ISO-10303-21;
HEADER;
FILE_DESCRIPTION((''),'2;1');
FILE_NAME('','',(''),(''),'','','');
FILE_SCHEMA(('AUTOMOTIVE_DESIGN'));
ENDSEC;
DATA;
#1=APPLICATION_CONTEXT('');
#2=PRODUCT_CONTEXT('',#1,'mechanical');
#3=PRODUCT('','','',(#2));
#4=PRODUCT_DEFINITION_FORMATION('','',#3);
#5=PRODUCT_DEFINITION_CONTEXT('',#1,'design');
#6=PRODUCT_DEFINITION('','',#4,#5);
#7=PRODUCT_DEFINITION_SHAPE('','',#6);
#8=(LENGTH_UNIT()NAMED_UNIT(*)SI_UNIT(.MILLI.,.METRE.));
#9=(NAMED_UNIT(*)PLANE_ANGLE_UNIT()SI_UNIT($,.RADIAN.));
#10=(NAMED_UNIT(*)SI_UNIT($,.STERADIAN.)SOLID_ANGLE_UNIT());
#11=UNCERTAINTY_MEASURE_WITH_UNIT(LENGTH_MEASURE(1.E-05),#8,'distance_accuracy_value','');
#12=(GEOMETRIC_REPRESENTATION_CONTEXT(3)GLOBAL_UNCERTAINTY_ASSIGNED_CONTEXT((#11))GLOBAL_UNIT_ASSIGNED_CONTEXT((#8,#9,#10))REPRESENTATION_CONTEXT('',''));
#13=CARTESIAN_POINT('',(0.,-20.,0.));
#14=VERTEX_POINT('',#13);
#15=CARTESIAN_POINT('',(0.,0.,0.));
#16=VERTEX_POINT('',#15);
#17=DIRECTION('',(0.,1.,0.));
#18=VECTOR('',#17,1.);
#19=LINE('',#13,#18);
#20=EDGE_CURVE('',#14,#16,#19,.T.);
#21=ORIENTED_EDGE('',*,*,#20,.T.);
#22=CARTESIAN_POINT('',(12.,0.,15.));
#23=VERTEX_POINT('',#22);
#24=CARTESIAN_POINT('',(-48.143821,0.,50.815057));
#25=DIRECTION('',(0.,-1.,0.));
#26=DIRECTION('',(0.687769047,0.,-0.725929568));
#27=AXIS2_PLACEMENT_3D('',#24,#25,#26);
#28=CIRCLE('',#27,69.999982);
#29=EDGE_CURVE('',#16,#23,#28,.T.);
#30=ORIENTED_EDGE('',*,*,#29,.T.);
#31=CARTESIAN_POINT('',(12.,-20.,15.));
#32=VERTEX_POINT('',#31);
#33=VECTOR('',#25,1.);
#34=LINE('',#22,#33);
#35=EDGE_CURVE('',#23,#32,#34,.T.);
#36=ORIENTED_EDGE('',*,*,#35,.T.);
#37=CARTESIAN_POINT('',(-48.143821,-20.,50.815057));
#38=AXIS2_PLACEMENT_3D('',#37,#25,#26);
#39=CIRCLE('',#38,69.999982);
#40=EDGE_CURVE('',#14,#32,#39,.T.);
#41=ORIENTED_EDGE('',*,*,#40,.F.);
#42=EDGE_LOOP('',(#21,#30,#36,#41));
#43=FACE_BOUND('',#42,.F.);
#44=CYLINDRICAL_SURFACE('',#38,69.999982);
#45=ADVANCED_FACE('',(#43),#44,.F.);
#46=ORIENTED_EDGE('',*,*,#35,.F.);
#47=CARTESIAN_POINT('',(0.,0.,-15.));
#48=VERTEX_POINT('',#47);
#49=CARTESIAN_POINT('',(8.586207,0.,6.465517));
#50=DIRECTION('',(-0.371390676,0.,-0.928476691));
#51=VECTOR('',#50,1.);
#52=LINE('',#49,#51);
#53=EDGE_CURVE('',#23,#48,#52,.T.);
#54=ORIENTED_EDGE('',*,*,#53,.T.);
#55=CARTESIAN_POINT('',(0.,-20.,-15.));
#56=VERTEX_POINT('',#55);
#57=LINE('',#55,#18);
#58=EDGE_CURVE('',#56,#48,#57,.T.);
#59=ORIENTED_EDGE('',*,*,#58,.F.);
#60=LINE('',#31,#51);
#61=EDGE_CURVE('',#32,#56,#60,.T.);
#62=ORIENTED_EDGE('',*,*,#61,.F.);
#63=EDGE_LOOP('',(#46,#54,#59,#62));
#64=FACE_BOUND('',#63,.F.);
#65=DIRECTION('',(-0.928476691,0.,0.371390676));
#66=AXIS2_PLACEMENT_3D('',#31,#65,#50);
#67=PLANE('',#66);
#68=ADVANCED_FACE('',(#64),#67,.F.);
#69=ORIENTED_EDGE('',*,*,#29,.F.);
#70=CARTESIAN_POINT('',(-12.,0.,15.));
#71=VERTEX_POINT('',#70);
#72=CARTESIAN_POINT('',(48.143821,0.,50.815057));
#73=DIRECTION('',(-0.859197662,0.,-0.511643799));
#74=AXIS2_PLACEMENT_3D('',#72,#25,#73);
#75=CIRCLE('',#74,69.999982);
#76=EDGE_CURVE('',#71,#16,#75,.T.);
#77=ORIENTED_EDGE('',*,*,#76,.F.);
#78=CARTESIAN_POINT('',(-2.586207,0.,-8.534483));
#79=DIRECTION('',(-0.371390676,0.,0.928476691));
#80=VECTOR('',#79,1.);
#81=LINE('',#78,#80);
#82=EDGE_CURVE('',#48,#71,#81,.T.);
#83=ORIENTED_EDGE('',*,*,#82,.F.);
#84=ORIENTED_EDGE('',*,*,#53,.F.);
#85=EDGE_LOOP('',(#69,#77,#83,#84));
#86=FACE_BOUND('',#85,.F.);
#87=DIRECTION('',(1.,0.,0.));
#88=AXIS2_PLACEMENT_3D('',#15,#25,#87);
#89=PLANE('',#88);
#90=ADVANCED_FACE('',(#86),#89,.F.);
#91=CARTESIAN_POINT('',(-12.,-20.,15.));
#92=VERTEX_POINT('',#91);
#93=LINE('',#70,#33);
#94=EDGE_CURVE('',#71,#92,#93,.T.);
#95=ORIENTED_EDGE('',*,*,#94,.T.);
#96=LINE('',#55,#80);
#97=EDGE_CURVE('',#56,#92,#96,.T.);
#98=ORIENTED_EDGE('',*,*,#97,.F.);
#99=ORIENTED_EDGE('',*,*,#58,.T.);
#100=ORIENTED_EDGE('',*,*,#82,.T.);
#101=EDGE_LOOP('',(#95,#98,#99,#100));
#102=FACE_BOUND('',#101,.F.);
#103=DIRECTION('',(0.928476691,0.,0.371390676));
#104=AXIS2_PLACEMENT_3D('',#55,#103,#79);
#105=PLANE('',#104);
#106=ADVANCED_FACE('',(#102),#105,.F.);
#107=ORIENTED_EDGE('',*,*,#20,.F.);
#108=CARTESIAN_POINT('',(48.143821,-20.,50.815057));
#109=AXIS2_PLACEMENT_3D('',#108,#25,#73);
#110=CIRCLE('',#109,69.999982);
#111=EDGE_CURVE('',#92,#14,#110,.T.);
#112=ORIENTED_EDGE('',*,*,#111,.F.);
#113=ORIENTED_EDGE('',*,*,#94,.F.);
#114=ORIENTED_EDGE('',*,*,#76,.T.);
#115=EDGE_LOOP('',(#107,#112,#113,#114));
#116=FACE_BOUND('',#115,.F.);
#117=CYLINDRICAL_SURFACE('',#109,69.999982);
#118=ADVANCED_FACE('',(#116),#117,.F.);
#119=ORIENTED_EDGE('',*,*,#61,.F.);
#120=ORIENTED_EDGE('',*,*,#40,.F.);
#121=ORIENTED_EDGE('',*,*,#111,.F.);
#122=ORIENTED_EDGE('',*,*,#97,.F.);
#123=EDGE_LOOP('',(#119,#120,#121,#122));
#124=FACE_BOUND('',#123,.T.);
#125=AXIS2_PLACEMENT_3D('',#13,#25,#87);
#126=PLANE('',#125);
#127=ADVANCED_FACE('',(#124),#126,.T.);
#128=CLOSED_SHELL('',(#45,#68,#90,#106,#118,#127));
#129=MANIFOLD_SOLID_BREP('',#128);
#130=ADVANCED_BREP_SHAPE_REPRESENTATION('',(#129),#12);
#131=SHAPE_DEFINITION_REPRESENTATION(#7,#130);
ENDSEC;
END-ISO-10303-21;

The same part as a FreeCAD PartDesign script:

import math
import FreeCAD as App
import Part
import Sketcher
from FreeCAD import Vector


def add_polygon(sketch, points):
    """Adds a closed chain of lines whose ends are joined by coincident constraints."""
    first, n = sketch.GeometryCount, len(points)
    for a, b in zip(points, points[1:] + points[:1]):
        sketch.addGeometry(Part.LineSegment(App.Vector(*a, 0), App.Vector(*b, 0)), False)
    for i in range(n):
        sketch.addConstraint(Sketcher.Constraint("Coincident", first + i, 2, first + (i + 1) % n, 1))

doc = App.newDocument("Part")
body = doc.addObject("PartDesign::Body", "Body")

sketch1 = body.newObject("Sketcher::SketchObject", "Sketch")
sketch1.AttachmentSupport = (doc.getObject("XZ_Plane"), [""])
sketch1.MapMode = "FlatFace"
add_polygon(sketch1, [(-12, 15), (-12, -15), (12, -15), (12, 15)])
sketch1.addConstraint(Sketcher.Constraint("Vertical", 0))
sketch1.addConstraint(Sketcher.Constraint("Horizontal", 1))
sketch1.addConstraint(Sketcher.Constraint("Vertical", 2))
sketch1.addConstraint(Sketcher.Constraint("Horizontal", 3))
sketch1.addConstraint(Sketcher.Constraint("Symmetric", 0, 2, 2, 2, -1, 1))
sketch1.addConstraint(Sketcher.Constraint("DistanceX", 1, 1, 1, 2, 24.0))
sketch1.addConstraint(Sketcher.Constraint("DistanceY", 0, 2, 0, 1, 30.0))
pad1 = body.newObject("PartDesign::Pad", "Pad")
pad1.Profile = sketch1
pad1.Length = 20

sketch2 = body.newObject("Sketcher::SketchObject", "Sketch001")
sketch2.AttachmentSupport = (doc.getObject("XZ_Plane"), [""])
sketch2.MapMode = "FlatFace"
sketch2.AttachmentOffset = App.Placement(Vector(0, 0, 20), App.Rotation())
sketch2.addGeometry(Part.ArcOfCircle(Part.Circle(Vector(48, 51, 0), Vector(0, 0, 1), 70), math.radians(-149.23), math.radians(-133.45)), False)
sketch2.addGeometry(Part.ArcOfCircle(Part.Circle(Vector(-48, 51, 0), Vector(0, 0, 1), 70), math.radians(-46.55), math.radians(-30.77)), False)
sketch2.addGeometry(Part.LineSegment(Vector(12, 15, 0), Vector(-12, 15, 0)), False)
sketch2.addConstraint(Sketcher.Constraint("Coincident", 0, 2, 1, 1))
sketch2.addConstraint(Sketcher.Constraint("Coincident", 1, 2, 2, 1))
sketch2.addConstraint(Sketcher.Constraint("Coincident", 2, 2, 0, 1))
sketch2.addConstraint(Sketcher.Constraint("Horizontal", 2))
sketch2.addConstraint(Sketcher.Constraint("Coincident", 0, 2, -1, 1))
sketch2.addConstraint(Sketcher.Constraint("Equal", 0, 1))
sketch2.addConstraint(Sketcher.Constraint("Horizontal", 0, 3, 1, 3))
sketch2.addConstraint(Sketcher.Constraint("DistanceX", 2, 2, 2, 1, 24.0))
sketch2.addConstraint(Sketcher.Constraint("DistanceY", -1, 1, 1, 2, 15.0))
sketch2.addConstraint(Sketcher.Constraint("Radius", 0, 69.999982))
pocket1 = body.newObject("PartDesign::Pocket", "Pocket")
pocket1.Profile = sketch2
pocket1.Length = 25

sketch3 = body.newObject("Sketcher::SketchObject", "Sketch002")
sketch3.AttachmentSupport = (doc.getObject("XZ_Plane"), [""])
sketch3.MapMode = "FlatFace"
sketch3.AttachmentOffset = App.Placement(Vector(0, 0, 20), App.Rotation())
add_polygon(sketch3, [(12, 15), (0, -15), (12, -15)])
add_polygon(sketch3, [(0, -15), (-12, 15), (-12, -15)])
sketch3.addConstraint(Sketcher.Constraint("Horizontal", 1))
sketch3.addConstraint(Sketcher.Constraint("Vertical", 2))
sketch3.addConstraint(Sketcher.Constraint("Vertical", 4))
sketch3.addConstraint(Sketcher.Constraint("Horizontal", 5))
sketch3.addConstraint(Sketcher.Constraint("Coincident", 5, 2, 0, 2))
sketch3.addConstraint(Sketcher.Constraint("Symmetric", 1, 2, 3, 2, -1, 1))
sketch3.addConstraint(Sketcher.Constraint("PointOnObject", 0, 2, -2))
sketch3.addConstraint(Sketcher.Constraint("Horizontal", 2, 2, 3, 2))
sketch3.addConstraint(Sketcher.Constraint("DistanceX", 1, 1, 1, 2, 12.0))
sketch3.addConstraint(Sketcher.Constraint("DistanceY", 2, 1, 2, 2, 30.0))
pocket2 = body.newObject("PartDesign::Pocket", "Pocket001")
pocket2.Profile = sketch3
pocket2.Length = 25

doc.recompute()
